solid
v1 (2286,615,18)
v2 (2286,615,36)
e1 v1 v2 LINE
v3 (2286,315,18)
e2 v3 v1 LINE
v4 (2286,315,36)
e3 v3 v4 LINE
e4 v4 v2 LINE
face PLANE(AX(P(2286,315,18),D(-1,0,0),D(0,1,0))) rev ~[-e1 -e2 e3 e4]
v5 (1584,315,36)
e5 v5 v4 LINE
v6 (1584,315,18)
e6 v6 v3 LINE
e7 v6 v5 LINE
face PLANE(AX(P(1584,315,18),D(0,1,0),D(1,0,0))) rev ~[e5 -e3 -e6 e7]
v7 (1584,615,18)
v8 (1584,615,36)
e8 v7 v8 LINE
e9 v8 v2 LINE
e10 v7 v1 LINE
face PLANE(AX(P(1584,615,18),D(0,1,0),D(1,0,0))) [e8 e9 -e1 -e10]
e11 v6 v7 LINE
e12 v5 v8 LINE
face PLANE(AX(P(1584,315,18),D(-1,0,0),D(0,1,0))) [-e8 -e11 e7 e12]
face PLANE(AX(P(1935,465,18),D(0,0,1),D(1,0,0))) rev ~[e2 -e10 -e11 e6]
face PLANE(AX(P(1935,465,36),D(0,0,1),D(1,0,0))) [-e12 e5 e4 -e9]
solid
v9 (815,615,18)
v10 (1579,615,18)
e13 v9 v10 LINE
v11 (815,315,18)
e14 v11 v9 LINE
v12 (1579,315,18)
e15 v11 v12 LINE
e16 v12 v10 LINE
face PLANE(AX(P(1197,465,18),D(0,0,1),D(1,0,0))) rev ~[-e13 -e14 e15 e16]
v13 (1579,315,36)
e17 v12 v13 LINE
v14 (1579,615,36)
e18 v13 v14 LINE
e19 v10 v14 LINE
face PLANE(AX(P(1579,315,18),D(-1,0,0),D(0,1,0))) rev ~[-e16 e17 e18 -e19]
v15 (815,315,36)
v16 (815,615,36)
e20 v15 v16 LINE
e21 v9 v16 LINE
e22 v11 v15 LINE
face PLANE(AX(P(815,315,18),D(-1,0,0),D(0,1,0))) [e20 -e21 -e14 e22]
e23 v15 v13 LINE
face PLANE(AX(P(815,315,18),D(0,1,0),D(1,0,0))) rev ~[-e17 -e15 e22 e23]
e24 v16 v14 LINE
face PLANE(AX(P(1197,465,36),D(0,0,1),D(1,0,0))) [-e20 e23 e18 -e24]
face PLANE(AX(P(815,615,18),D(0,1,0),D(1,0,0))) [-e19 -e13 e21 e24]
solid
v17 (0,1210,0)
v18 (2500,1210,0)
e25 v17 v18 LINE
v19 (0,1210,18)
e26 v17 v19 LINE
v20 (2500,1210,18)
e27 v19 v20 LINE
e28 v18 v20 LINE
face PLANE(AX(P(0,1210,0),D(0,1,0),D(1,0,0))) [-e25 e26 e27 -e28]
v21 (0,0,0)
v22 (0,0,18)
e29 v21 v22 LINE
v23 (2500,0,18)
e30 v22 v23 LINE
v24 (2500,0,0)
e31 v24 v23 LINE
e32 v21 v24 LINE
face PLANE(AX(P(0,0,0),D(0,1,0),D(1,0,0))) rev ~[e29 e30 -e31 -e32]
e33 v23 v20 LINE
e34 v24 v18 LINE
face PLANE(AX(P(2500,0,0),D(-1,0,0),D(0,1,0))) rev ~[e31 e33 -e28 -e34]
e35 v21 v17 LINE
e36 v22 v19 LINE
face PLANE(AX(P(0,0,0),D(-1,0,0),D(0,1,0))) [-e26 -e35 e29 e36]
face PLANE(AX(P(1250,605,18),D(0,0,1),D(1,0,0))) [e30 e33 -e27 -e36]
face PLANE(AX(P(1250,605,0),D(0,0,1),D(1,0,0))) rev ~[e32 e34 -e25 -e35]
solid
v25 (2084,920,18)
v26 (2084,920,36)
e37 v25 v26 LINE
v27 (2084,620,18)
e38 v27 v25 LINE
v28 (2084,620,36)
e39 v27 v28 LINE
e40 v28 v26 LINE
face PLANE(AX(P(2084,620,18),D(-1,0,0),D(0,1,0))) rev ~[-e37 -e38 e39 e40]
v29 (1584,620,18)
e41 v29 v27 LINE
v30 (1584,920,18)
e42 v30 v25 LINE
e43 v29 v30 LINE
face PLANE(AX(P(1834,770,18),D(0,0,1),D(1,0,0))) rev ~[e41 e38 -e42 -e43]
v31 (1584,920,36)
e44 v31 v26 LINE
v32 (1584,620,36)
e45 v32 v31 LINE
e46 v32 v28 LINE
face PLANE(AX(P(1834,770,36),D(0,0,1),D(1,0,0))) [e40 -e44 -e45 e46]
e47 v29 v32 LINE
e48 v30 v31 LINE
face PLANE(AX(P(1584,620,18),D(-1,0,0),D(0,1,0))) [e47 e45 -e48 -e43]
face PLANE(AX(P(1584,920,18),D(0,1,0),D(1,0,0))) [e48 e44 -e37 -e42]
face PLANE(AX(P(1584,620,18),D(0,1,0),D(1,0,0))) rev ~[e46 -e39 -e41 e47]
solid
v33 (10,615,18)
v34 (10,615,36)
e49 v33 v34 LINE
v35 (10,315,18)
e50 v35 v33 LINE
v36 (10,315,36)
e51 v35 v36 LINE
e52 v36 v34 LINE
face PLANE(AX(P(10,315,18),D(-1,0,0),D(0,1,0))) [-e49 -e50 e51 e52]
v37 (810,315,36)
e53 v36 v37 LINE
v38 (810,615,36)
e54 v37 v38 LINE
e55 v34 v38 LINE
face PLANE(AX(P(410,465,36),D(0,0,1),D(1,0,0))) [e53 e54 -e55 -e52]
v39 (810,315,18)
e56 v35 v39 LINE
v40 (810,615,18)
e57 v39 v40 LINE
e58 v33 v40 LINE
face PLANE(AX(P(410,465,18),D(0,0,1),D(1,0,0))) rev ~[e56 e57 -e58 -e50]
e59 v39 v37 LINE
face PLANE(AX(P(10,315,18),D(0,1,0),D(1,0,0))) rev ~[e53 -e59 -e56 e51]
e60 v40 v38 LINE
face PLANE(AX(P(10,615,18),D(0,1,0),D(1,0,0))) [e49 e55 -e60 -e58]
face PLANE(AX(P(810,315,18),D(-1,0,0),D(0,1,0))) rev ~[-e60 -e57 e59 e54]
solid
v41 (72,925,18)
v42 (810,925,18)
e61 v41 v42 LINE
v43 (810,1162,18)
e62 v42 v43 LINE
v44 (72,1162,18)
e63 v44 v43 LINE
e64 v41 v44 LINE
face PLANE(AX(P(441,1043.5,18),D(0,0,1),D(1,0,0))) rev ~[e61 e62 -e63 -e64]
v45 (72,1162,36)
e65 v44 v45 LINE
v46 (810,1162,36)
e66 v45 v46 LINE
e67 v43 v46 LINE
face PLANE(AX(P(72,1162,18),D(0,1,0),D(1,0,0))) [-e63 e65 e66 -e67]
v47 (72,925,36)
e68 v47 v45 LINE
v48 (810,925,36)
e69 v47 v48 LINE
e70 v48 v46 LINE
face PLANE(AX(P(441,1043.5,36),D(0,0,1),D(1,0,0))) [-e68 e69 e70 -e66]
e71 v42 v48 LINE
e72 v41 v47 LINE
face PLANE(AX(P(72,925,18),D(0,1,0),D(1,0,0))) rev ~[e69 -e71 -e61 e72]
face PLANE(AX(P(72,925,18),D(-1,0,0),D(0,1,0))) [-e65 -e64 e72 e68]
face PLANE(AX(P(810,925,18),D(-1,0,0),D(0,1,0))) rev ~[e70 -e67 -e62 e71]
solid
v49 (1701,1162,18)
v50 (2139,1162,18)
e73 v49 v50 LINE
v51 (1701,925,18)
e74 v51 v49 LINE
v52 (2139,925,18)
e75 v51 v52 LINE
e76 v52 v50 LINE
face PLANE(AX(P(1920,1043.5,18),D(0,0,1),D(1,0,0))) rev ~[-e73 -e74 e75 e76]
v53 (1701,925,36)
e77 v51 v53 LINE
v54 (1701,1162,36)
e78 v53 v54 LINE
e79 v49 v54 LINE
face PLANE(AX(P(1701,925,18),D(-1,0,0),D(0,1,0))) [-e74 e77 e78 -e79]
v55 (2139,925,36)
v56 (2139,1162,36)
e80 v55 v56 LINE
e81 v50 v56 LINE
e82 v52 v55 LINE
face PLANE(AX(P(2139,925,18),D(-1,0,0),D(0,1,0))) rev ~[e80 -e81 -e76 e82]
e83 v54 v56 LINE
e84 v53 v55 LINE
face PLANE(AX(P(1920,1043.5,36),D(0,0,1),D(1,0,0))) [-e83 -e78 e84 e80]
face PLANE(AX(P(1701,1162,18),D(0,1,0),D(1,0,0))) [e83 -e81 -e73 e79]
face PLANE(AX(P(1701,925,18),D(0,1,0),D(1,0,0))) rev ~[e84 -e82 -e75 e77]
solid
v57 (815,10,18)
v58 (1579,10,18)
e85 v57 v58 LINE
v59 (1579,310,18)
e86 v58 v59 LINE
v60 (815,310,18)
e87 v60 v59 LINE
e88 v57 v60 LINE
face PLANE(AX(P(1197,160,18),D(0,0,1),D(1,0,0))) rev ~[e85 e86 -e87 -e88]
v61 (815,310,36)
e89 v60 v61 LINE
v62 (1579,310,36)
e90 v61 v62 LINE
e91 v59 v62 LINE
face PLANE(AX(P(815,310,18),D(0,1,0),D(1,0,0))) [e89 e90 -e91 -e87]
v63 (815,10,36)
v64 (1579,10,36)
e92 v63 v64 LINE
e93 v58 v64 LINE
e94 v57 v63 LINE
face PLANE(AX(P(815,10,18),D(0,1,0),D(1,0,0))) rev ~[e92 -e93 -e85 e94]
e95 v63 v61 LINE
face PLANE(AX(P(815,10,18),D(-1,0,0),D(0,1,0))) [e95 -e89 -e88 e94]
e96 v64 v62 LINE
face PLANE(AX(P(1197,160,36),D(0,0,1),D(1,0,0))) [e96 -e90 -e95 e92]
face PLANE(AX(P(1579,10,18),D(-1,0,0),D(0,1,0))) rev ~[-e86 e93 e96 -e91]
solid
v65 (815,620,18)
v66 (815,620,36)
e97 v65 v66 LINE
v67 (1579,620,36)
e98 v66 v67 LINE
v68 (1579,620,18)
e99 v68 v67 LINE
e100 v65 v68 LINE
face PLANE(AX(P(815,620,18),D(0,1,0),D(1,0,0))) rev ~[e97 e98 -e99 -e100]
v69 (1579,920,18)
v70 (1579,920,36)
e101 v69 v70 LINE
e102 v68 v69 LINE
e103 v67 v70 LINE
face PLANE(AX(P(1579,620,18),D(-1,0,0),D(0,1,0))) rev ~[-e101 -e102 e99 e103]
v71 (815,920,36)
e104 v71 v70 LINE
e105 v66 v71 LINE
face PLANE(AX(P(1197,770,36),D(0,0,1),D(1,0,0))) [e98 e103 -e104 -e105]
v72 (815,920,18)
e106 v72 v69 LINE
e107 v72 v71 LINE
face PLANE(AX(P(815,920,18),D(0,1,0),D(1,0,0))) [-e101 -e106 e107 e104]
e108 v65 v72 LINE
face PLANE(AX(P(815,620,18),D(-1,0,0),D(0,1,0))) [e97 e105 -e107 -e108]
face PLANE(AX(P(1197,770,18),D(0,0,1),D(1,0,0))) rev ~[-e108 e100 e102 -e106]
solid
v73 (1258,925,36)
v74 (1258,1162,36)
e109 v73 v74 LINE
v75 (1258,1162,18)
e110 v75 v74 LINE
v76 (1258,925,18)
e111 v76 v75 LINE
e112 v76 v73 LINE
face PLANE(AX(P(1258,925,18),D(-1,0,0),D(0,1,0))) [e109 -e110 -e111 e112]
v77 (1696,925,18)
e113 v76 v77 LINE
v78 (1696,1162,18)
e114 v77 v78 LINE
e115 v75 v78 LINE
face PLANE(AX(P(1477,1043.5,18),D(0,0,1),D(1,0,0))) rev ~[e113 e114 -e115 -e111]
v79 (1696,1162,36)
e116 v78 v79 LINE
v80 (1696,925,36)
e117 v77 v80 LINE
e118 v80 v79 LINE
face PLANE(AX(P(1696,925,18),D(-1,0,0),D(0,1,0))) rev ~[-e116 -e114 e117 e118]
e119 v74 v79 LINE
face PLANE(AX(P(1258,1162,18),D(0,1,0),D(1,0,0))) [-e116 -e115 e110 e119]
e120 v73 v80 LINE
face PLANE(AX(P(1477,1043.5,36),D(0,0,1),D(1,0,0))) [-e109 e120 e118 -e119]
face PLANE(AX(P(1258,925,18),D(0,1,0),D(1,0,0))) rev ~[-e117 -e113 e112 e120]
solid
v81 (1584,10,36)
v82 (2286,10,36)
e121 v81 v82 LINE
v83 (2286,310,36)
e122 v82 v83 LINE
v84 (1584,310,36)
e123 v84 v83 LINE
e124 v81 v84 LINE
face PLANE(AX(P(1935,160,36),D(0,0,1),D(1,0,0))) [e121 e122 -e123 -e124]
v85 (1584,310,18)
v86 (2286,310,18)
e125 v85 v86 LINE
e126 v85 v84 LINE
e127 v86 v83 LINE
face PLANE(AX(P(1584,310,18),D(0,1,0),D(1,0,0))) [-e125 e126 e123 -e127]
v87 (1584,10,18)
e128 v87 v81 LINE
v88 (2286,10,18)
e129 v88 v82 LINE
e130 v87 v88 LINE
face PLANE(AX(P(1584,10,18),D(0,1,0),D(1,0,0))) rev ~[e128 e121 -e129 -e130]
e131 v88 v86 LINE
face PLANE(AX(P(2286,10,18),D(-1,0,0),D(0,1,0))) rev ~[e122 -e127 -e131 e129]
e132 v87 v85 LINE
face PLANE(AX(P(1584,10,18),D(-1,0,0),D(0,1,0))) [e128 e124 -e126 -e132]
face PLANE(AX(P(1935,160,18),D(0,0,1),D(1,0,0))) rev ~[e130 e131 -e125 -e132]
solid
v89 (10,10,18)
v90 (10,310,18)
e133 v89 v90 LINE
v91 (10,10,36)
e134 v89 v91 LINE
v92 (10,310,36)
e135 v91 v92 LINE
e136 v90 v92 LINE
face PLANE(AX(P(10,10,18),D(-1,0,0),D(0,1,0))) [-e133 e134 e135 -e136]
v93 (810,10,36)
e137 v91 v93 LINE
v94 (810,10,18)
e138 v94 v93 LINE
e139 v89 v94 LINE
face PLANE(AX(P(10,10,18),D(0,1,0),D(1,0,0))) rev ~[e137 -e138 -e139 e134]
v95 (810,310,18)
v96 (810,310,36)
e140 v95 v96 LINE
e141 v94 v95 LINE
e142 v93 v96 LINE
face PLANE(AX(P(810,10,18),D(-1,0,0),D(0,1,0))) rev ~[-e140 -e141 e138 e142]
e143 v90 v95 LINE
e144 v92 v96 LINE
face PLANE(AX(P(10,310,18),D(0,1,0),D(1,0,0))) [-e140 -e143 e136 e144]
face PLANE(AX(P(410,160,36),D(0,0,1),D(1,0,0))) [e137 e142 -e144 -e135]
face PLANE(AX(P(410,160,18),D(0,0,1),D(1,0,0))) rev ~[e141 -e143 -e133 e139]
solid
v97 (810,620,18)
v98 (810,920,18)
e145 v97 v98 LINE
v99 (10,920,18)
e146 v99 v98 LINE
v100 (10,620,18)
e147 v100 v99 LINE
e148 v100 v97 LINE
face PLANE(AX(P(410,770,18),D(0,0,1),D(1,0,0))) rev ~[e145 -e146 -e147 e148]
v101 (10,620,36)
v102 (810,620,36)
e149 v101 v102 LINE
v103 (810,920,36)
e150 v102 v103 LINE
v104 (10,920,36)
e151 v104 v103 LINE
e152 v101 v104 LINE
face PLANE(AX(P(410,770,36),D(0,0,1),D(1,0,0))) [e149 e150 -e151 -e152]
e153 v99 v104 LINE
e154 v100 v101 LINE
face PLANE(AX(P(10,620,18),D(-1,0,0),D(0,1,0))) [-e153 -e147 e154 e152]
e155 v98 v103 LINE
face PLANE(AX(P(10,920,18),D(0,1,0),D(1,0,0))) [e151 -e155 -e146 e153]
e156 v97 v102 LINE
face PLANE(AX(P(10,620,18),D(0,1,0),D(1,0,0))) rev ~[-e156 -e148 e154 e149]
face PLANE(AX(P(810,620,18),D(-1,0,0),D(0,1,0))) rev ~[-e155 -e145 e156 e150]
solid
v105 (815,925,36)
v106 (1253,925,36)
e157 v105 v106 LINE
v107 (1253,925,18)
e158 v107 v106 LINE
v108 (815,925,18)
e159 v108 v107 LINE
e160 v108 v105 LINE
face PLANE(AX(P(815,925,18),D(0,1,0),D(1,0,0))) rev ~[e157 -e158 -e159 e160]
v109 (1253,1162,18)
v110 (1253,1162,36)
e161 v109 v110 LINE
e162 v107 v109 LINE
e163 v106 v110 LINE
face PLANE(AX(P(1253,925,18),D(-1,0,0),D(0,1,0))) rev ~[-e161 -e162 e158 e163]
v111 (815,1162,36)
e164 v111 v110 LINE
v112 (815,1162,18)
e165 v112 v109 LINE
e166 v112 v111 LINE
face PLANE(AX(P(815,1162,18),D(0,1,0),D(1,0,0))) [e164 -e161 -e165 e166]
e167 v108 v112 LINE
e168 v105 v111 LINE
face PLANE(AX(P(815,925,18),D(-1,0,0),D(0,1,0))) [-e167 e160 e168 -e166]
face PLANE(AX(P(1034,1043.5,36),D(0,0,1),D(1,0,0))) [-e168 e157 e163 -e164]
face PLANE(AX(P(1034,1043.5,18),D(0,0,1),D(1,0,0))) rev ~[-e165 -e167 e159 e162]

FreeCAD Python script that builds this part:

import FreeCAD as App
import Part
import Sketcher

V = App.Vector


def add_polygon(sketch, points):
    """Adds a closed chain of lines whose ends are joined by coincident constraints."""
    first, n = sketch.GeometryCount, len(points)
    for a, b in zip(points, points[1:] + points[:1]):
        sketch.addGeometry(Part.LineSegment(App.Vector(*a, 0), App.Vector(*b, 0)), False)
    for i in range(n):
        sketch.addConstraint(Sketcher.Constraint("Coincident", first + i, 2, first + (i + 1) % n, 1))

doc = App.newDocument("Part")
body = doc.addObject("PartDesign::Body", "Body")

sketch1 = body.newObject("Sketcher::SketchObject", "Sketch")
sketch1.AttachmentSupport = (doc.getObject("XY_Plane"), [""])
sketch1.MapMode = "FlatFace"
add_polygon(sketch1, [(0, 1210), (0, 0), (2500, 0), (2500, 1210)])
sketch1.addConstraint(Sketcher.Constraint("Vertical", 0))
sketch1.addConstraint(Sketcher.Constraint("Horizontal", 1))
sketch1.addConstraint(Sketcher.Constraint("Vertical", 2))
sketch1.addConstraint(Sketcher.Constraint("Horizontal", 3))
sketch1.addConstraint(Sketcher.Constraint("Coincident", 0, 2, -1, 1))
sketch1.addConstraint(Sketcher.Constraint("DistanceX", 1, 1, 1, 2, 2500.0))
sketch1.addConstraint(Sketcher.Constraint("DistanceY", 0, 2, 0, 1, 1210.0))
pad1 = body.newObject("PartDesign::Pad", "Pad")
pad1.Profile = sketch1
pad1.Length = 18
body2 = doc.addObject("PartDesign::Body", "Body001")
body2.AllowCompound = True

sketch2 = body2.newObject("Sketcher::SketchObject", "Sketch001")
sketch2.AttachmentSupport = (doc.getObject("XY_Plane001"), [""])
sketch2.MapMode = "FlatFace"
sketch2.AttachmentOffset = App.Placement(V(0, 0, 18), App.Rotation())
add_polygon(sketch2, [(72, 1162), (72, 925), (810, 925), (810, 1162)])
add_polygon(sketch2, [(10, 920), (10, 620), (810, 620), (810, 920)])
add_polygon(sketch2, [(10, 615), (10, 315), (810, 315), (810, 615)])
add_polygon(sketch2, [(10, 310), (10, 10), (810, 10), (810, 310)])
add_polygon(sketch2, [(815, 310), (815, 10), (1579, 10), (1579, 310)])
add_polygon(sketch2, [(815, 615), (815, 315), (1579, 315), (1579, 615)])
add_polygon(sketch2, [(815, 920), (815, 620), (1579, 620), (1579, 920)])
add_polygon(sketch2, [(815, 1162), (815, 925), (1253, 925), (1253, 1162)])
add_polygon(sketch2, [(1258, 1162), (1258, 925), (1696, 925), (1696, 1162)])
add_polygon(sketch2, [(1701, 1162), (1701, 925), (2139, 925), (2139, 1162)])
add_polygon(sketch2, [(1584, 920), (1584, 620), (2084, 620), (2084, 920)])
add_polygon(sketch2, [(1584, 615), (1584, 315), (2286, 315), (2286, 615)])
add_polygon(sketch2, [(1584, 310), (1584, 10), (2286, 10), (2286, 310)])
sketch2.addConstraint(Sketcher.Constraint("Vertical", 0))
sketch2.addConstraint(Sketcher.Constraint("Horizontal", 1))
sketch2.addConstraint(Sketcher.Constraint("Vertical", 2))
sketch2.addConstraint(Sketcher.Constraint("Horizontal", 3))
sketch2.addConstraint(Sketcher.Constraint("Vertical", 4))
sketch2.addConstraint(Sketcher.Constraint("Horizontal", 5))
sketch2.addConstraint(Sketcher.Constraint("Vertical", 6))
sketch2.addConstraint(Sketcher.Constraint("Horizontal", 7))
sketch2.addConstraint(Sketcher.Constraint("Vertical", 8))
sketch2.addConstraint(Sketcher.Constraint("Horizontal", 9))
sketch2.addConstraint(Sketcher.Constraint("Vertical", 10))
sketch2.addConstraint(Sketcher.Constraint("Horizontal", 11))
sketch2.addConstraint(Sketcher.Constraint("Vertical", 12))
sketch2.addConstraint(Sketcher.Constraint("Horizontal", 13))
sketch2.addConstraint(Sketcher.Constraint("Vertical", 14))
sketch2.addConstraint(Sketcher.Constraint("Horizontal", 15))
sketch2.addConstraint(Sketcher.Constraint("Vertical", 16))
sketch2.addConstraint(Sketcher.Constraint("Horizontal", 17))
sketch2.addConstraint(Sketcher.Constraint("Vertical", 18))
sketch2.addConstraint(Sketcher.Constraint("Horizontal", 19))
sketch2.addConstraint(Sketcher.Constraint("Vertical", 20))
sketch2.addConstraint(Sketcher.Constraint("Horizontal", 21))
sketch2.addConstraint(Sketcher.Constraint("Vertical", 22))
sketch2.addConstraint(Sketcher.Constraint("Horizontal", 23))
sketch2.addConstraint(Sketcher.Constraint("Vertical", 24))
sketch2.addConstraint(Sketcher.Constraint("Horizontal", 25))
sketch2.addConstraint(Sketcher.Constraint("Vertical", 26))
sketch2.addConstraint(Sketcher.Constraint("Horizontal", 27))
sketch2.addConstraint(Sketcher.Constraint("Vertical", 28))
sketch2.addConstraint(Sketcher.Constraint("Horizontal", 29))
sketch2.addConstraint(Sketcher.Constraint("Vertical", 30))
sketch2.addConstraint(Sketcher.Constraint("Horizontal", 31))
sketch2.addConstraint(Sketcher.Constraint("Vertical", 32))
sketch2.addConstraint(Sketcher.Constraint("Horizontal", 33))
sketch2.addConstraint(Sketcher.Constraint("Vertical", 34))
sketch2.addConstraint(Sketcher.Constraint("Horizontal", 35))
sketch2.addConstraint(Sketcher.Constraint("Vertical", 36))
sketch2.addConstraint(Sketcher.Constraint("Horizontal", 37))
sketch2.addConstraint(Sketcher.Constraint("Vertical", 38))
sketch2.addConstraint(Sketcher.Constraint("Horizontal", 39))
sketch2.addConstraint(Sketcher.Constraint("Vertical", 40))
sketch2.addConstraint(Sketcher.Constraint("Horizontal", 41))
sketch2.addConstraint(Sketcher.Constraint("Vertical", 42))
sketch2.addConstraint(Sketcher.Constraint("Horizontal", 43))
sketch2.addConstraint(Sketcher.Constraint("Vertical", 44))
sketch2.addConstraint(Sketcher.Constraint("Horizontal", 45))
sketch2.addConstraint(Sketcher.Constraint("Vertical", 46))
sketch2.addConstraint(Sketcher.Constraint("Horizontal", 47))
sketch2.addConstraint(Sketcher.Constraint("Vertical", 48))
sketch2.addConstraint(Sketcher.Constraint("Horizontal", 49))
sketch2.addConstraint(Sketcher.Constraint("Vertical", 50))
sketch2.addConstraint(Sketcher.Constraint("Horizontal", 51))
sketch2.addConstraint(Sketcher.Constraint("Horizontal", 13, 2, 16, 2))
sketch2.addConstraint(Sketcher.Constraint("Horizontal", 15, 2, 18, 2))
sketch2.addConstraint(Sketcher.Constraint("Horizontal", 9, 2, 20, 2))
sketch2.addConstraint(Sketcher.Constraint("Horizontal", 11, 2, 22, 2))
sketch2.addConstraint(Sketcher.Constraint("Horizontal", 5, 2, 24, 2))
sketch2.addConstraint(Sketcher.Constraint("Horizontal", 7, 2, 26, 2))
sketch2.addConstraint(Sketcher.Constraint("Horizontal", 1, 2, 28, 2))
sketch2.addConstraint(Sketcher.Constraint("Horizontal", 3, 2, 30, 2))
sketch2.addConstraint(Sketcher.Constraint("Horizontal", 29, 2, 32, 2))
sketch2.addConstraint(Sketcher.Constraint("Horizontal", 31, 2, 34, 2))
sketch2.addConstraint(Sketcher.Constraint("Horizontal", 33, 2, 36, 2))
sketch2.addConstraint(Sketcher.Constraint("Horizontal", 35, 2, 38, 2))
sketch2.addConstraint(Sketcher.Constraint("Horizontal", 25, 2, 40, 2))
sketch2.addConstraint(Sketcher.Constraint("Horizontal", 27, 2, 42, 2))
sketch2.addConstraint(Sketcher.Constraint("Horizontal", 21, 2, 44, 2))
sketch2.addConstraint(Sketcher.Constraint("Horizontal", 23, 2, 46, 2))
sketch2.addConstraint(Sketcher.Constraint("Horizontal", 17, 2, 48, 2))
sketch2.addConstraint(Sketcher.Constraint("Horizontal", 19, 2, 50, 2))
sketch2.addConstraint(Sketcher.Constraint("Vertical", 2, 2, 5, 2))
sketch2.addConstraint(Sketcher.Constraint("Vertical", 7, 2, 8, 2))
sketch2.addConstraint(Sketcher.Constraint("Vertical", 6, 2, 9, 2))
sketch2.addConstraint(Sketcher.Constraint("Vertical", 11, 2, 12, 2))
sketch2.addConstraint(Sketcher.Constraint("Vertical", 10, 2, 13, 2))
sketch2.addConstraint(Sketcher.Constraint("Vertical", 19, 2, 20, 2))
sketch2.addConstraint(Sketcher.Constraint("Vertical", 18, 2, 21, 2))
sketch2.addConstraint(Sketcher.Constraint("Vertical", 23, 2, 24, 2))
sketch2.addConstraint(Sketcher.Constraint("Vertical", 22, 2, 25, 2))
sketch2.addConstraint(Sketcher.Constraint("Vertical", 27, 2, 28, 2))
sketch2.addConstraint(Sketcher.Constraint("Vertical", 43, 2, 44, 2))
sketch2.addConstraint(Sketcher.Constraint("Vertical", 47, 2, 48, 2))
sketch2.addConstraint(Sketcher.Constraint("Vertical", 46, 2, 49, 2))
sketch2.addConstraint(Sketcher.Constraint("Equal", 31, 33))
sketch2.addConstraint(Sketcher.Constraint("Equal", 35, 37))
sketch2.addConstraint(Sketcher.Constraint("Equal", 6, 8))
sketch2.addConstraint(Sketcher.Constraint("Equal", 10, 12))
sketch2.addConstraint(Sketcher.Constraint("DistanceX", 1, 1, 1, 2, 738.0))
sketch2.addConstraint(Sketcher.Constraint("DistanceX", 5, 1, 5, 2, 800.0))
sketch2.addConstraint(Sketcher.Constraint("DistanceX", 17, 1, 17, 2, 764.0))
sketch2.addConstraint(Sketcher.Constraint("DistanceX", 29, 1, 29, 2, 438.0))
sketch2.addConstraint(Sketcher.Constraint("DistanceX", 41, 1, 41, 2, 500.0))
sketch2.addConstraint(Sketcher.Constraint("DistanceX", 45, 1, 45, 2, 702.0))
sketch2.addConstraint(Sketcher.Constraint("DistanceY", 0, 2, 0, 1, 237.0))
sketch2.addConstraint(Sketcher.Constraint("DistanceY", 4, 2, 4, 1, 300.0))
sketch2.addConstraint(Sketcher.Constraint("DistanceX", -1, 1, 0, 2, 72.0))
sketch2.addConstraint(Sketcher.Constraint("DistanceY", -1, 1, 0, 2, 925.0))
sketch2.addConstraint(Sketcher.Constraint("DistanceY", -1, 1, 4, 2, 620.0))
sketch2.addConstraint(Sketcher.Constraint("DistanceY", -1, 1, 8, 2, 315.0))
sketch2.addConstraint(Sketcher.Constraint("DistanceY", -1, 1, 12, 2, 10.0))
sketch2.addConstraint(Sketcher.Constraint("DistanceX", -1, 1, 16, 2, 815.0))
sketch2.addConstraint(Sketcher.Constraint("DistanceX", -1, 1, 32, 2, 1258.0))
sketch2.addConstraint(Sketcher.Constraint("DistanceX", -1, 1, 36, 2, 1701.0))
sketch2.addConstraint(Sketcher.Constraint("DistanceX", -1, 1, 40, 2, 1584.0))
pad2 = body2.newObject("PartDesign::Pad", "Pad001")
pad2.Profile = sketch2
pad2.Length = 18

doc.recompute()
